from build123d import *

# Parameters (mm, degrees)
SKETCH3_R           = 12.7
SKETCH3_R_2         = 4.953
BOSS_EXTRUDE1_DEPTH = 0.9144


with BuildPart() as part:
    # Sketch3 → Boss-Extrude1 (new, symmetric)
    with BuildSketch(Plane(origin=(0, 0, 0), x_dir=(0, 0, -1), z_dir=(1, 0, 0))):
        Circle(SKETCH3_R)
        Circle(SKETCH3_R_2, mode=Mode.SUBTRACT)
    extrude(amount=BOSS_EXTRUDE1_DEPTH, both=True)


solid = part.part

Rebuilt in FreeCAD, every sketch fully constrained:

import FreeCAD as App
import Part
import Sketcher
from FreeCAD import Vector
Q = App.Units.Quantity

doc = App.newDocument("Part")
body = doc.addObject("PartDesign::Body", "Body")

sketch1 = doc.addObject("Sketcher::SketchObject", "Sketch")
body.addObject(sketch1)
sketch1.AttachmentSupport = (doc.YZ_Plane, [""])
sketch1.MapMode = "FlatFace"
sketch1.addGeometry(Part.Circle(Vector(0, 0, 0), Vector(0, 0, 1), 12.7), False)
sketch1.addGeometry(Part.Circle(Vector(0, 0, 0), Vector(0, 0, 1), 4.953), False)
sketch1.addConstraint(Sketcher.Constraint("Coincident", 0, 3, -1, 1))
sketch1.addConstraint(Sketcher.Constraint("Coincident", 1, 3, -1, 1))
sketch1.addConstraint(Sketcher.Constraint("Diameter", 0, Q("1 in")))
sketch1.addConstraint(Sketcher.Constraint("Diameter", 1, Q("0.39 in")))
pad1 = doc.addObject("PartDesign::Pad", "Pad")
body.addObject(pad1)
pad1.Profile = sketch1
pad1.Length = Q("0.072 in")
pad1.Midplane = True

doc.recompute()
